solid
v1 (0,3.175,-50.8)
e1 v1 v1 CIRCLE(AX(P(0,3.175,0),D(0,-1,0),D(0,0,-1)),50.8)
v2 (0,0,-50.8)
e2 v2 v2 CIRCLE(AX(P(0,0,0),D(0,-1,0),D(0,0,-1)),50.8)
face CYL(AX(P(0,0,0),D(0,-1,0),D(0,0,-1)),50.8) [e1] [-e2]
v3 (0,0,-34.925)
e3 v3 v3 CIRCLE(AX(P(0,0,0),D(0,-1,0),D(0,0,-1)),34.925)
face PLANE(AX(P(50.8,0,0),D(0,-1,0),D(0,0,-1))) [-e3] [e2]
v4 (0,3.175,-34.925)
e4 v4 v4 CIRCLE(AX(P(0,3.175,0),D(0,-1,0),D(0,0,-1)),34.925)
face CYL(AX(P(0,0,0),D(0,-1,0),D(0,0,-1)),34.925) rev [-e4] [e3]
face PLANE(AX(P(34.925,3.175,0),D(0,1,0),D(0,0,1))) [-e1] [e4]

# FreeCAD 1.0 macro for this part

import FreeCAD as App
import Part
import Sketcher
Q = App.Units.Quantity


def add_polygon(sketch, points):
    """Adds a closed chain of lines whose ends are joined by coincident constraints."""
    first, n = sketch.GeometryCount, len(points)
    for a, b in zip(points, points[1:] + points[:1]):
        sketch.addGeometry(Part.LineSegment(App.Vector(*a, 0), App.Vector(*b, 0)), False)
    for i in range(n):
        sketch.addConstraint(Sketcher.Constraint("Coincident", first + i, 2, first + (i + 1) % n, 1))

doc = App.newDocument("Part")
body = doc.addObject("PartDesign::Body", "Body")

sketch1 = body.newObject("Sketcher::SketchObject", "Sketch")
sketch1.AttachmentSupport = (doc.getObject("XY_Plane"), [""])
sketch1.MapMode = "FlatFace"
add_polygon(sketch1, [(34.9, 3.2), (34.9, 0), (50.8, 0), (50.8, 3.2)])
sketch1.addConstraint(Sketcher.Constraint("Vertical", 0))
sketch1.addConstraint(Sketcher.Constraint("Horizontal", 1))
sketch1.addConstraint(Sketcher.Constraint("Vertical", 2))
sketch1.addConstraint(Sketcher.Constraint("Horizontal", 3))
sketch1.addConstraint(Sketcher.Constraint("PointOnObject", 0, 2, -1))
sketch1.addConstraint(Sketcher.Constraint("DistanceX", -1, 1, 1, 2, Q("2 in")))
sketch1.addConstraint(Sketcher.Constraint("DistanceX", 1, 1, 1, 2, Q("0.625 in")))
sketch1.addConstraint(Sketcher.Constraint("DistanceY", 0, 2, 0, 1, Q("0.125 in")))
revolution = body.newObject("PartDesign::Revolution", "Revolution")
revolution.Profile = sketch1
revolution.ReferenceAxis = (sketch1, ["V_Axis"])
revolution.Angle = 360

doc.recompute()
